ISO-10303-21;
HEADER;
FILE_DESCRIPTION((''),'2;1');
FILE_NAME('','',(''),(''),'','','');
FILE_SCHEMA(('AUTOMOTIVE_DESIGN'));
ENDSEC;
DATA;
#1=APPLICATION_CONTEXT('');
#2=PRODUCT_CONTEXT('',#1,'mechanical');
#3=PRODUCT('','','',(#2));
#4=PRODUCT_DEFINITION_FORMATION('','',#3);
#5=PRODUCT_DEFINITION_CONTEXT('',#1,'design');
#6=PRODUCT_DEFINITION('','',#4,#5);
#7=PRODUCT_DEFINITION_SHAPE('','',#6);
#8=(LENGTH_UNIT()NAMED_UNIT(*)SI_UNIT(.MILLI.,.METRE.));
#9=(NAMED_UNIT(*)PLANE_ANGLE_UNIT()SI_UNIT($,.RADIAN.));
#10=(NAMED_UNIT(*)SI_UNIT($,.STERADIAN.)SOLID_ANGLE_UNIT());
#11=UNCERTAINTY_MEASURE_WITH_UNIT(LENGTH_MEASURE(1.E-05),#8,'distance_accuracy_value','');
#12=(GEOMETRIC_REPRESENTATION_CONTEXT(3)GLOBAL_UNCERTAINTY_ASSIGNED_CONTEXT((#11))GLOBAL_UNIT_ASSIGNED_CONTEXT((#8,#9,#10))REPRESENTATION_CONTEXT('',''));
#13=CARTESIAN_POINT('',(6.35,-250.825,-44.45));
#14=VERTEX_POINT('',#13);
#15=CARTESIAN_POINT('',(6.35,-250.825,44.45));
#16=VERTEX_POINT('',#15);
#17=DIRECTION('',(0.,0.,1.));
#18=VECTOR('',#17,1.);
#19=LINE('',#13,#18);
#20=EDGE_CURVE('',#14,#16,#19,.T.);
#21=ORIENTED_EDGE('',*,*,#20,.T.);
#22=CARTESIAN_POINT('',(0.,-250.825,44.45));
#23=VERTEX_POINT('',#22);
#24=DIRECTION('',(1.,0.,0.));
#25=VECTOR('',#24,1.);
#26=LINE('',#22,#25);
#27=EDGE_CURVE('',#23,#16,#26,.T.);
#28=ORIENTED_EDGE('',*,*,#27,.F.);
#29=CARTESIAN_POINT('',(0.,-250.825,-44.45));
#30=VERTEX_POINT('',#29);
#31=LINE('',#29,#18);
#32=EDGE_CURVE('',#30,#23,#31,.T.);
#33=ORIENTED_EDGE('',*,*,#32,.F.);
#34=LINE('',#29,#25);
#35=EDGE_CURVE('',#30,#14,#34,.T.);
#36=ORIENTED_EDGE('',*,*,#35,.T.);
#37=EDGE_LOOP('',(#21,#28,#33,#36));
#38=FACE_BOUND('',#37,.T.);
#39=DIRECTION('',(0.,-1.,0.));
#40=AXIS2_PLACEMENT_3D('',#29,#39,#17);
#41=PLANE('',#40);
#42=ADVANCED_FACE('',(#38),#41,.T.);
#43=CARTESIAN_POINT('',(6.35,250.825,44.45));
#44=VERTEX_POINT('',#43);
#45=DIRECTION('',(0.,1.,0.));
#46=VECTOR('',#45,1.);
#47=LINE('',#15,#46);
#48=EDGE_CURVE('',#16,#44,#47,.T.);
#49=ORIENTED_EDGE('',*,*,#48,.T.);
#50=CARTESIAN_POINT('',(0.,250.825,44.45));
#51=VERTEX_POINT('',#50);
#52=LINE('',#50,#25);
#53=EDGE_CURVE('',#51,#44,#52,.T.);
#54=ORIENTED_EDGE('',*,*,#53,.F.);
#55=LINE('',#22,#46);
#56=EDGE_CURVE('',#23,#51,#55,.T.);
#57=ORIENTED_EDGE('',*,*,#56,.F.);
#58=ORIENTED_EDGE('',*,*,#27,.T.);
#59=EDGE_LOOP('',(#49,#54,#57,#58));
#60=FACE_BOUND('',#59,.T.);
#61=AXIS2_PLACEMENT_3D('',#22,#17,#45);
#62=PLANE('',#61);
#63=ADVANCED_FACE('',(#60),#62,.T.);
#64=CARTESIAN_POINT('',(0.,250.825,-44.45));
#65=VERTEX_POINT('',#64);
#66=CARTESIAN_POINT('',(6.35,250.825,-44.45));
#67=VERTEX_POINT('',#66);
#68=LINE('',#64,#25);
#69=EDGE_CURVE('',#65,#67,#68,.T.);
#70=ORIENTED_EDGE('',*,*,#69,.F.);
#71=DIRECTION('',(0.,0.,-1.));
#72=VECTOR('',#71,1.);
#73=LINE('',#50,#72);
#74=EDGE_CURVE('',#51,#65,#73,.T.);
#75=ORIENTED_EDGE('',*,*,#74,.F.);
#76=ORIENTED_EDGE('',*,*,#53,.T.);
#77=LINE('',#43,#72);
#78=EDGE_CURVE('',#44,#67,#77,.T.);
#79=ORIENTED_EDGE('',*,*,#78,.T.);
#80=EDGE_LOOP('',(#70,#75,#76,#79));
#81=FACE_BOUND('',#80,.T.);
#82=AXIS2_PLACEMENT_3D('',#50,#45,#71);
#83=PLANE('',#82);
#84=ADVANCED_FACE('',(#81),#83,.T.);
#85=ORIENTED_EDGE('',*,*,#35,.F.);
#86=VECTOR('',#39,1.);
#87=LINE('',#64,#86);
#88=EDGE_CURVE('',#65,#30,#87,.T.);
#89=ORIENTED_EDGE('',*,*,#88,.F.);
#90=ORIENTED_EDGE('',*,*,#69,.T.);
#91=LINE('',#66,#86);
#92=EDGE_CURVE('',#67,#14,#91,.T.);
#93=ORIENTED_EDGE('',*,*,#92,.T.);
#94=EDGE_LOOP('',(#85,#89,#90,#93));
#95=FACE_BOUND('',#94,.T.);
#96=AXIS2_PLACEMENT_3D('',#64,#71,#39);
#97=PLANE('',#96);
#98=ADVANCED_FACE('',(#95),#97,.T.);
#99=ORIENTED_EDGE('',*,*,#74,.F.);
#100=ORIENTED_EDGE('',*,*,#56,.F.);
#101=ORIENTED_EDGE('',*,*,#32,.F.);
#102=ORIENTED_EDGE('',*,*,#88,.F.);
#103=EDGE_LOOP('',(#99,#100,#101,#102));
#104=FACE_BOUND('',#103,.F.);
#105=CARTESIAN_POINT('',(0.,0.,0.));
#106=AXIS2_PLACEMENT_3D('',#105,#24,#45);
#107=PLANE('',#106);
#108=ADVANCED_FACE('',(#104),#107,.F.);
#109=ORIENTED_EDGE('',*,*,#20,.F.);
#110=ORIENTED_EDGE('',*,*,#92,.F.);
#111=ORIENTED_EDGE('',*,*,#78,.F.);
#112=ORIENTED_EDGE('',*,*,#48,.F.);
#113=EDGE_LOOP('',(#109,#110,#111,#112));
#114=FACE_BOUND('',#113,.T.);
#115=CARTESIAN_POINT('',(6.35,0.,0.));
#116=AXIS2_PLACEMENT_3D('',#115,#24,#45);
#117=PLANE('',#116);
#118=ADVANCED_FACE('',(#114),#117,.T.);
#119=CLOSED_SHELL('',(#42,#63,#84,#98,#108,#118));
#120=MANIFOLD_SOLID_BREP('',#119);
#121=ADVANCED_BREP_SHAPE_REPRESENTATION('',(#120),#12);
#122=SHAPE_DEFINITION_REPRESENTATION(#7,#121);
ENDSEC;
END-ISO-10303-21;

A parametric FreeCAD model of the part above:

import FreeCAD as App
import Part
import Sketcher

V = App.Vector
Q = App.Units.Quantity


def add_polygon(sketch, points):
    """Adds a closed chain of lines whose ends are joined by coincident constraints."""
    first, n = sketch.GeometryCount, len(points)
    for a, b in zip(points, points[1:] + points[:1]):
        sketch.addGeometry(Part.LineSegment(App.Vector(*a, 0), App.Vector(*b, 0)), False)
    for i in range(n):
        sketch.addConstraint(Sketcher.Constraint("Coincident", first + i, 2, first + (i + 1) % n, 1))

doc = App.newDocument("Part")
body = doc.addObject("PartDesign::Body", "Body")

sketch1 = doc.addObject("Sketcher::SketchObject", "Sketch")
body.addObject(sketch1)
sketch1.AttachmentSupport = (doc.YZ_Plane, [""])
sketch1.MapMode = "FlatFace"
add_polygon(sketch1, [(250.825, 44.45), (-250.825, 44.45), (-250.825, -44.45), (250.825, -44.45)])
sketch1.addConstraint(Sketcher.Constraint("Horizontal", 0))
sketch1.addConstraint(Sketcher.Constraint("Vertical", 1))
sketch1.addConstraint(Sketcher.Constraint("Horizontal", 2))
sketch1.addConstraint(Sketcher.Constraint("Vertical", 3))
sketch1.addConstraint(Sketcher.Constraint("Symmetric", 0, 2, 2, 2, -1, 1))
sketch1.addConstraint(Sketcher.Constraint("DistanceY", 1, 2, 1, 1, Q("3.5 in")))
sketch1.addConstraint(Sketcher.Constraint("DistanceX", 0, 2, 0, 1, Q("19.75 in")))
pad1 = doc.addObject("PartDesign::Pad", "Pad")
body.addObject(pad1)
pad1.Profile = sketch1
pad1.Length = Q("0.25 in")

doc.recompute()
